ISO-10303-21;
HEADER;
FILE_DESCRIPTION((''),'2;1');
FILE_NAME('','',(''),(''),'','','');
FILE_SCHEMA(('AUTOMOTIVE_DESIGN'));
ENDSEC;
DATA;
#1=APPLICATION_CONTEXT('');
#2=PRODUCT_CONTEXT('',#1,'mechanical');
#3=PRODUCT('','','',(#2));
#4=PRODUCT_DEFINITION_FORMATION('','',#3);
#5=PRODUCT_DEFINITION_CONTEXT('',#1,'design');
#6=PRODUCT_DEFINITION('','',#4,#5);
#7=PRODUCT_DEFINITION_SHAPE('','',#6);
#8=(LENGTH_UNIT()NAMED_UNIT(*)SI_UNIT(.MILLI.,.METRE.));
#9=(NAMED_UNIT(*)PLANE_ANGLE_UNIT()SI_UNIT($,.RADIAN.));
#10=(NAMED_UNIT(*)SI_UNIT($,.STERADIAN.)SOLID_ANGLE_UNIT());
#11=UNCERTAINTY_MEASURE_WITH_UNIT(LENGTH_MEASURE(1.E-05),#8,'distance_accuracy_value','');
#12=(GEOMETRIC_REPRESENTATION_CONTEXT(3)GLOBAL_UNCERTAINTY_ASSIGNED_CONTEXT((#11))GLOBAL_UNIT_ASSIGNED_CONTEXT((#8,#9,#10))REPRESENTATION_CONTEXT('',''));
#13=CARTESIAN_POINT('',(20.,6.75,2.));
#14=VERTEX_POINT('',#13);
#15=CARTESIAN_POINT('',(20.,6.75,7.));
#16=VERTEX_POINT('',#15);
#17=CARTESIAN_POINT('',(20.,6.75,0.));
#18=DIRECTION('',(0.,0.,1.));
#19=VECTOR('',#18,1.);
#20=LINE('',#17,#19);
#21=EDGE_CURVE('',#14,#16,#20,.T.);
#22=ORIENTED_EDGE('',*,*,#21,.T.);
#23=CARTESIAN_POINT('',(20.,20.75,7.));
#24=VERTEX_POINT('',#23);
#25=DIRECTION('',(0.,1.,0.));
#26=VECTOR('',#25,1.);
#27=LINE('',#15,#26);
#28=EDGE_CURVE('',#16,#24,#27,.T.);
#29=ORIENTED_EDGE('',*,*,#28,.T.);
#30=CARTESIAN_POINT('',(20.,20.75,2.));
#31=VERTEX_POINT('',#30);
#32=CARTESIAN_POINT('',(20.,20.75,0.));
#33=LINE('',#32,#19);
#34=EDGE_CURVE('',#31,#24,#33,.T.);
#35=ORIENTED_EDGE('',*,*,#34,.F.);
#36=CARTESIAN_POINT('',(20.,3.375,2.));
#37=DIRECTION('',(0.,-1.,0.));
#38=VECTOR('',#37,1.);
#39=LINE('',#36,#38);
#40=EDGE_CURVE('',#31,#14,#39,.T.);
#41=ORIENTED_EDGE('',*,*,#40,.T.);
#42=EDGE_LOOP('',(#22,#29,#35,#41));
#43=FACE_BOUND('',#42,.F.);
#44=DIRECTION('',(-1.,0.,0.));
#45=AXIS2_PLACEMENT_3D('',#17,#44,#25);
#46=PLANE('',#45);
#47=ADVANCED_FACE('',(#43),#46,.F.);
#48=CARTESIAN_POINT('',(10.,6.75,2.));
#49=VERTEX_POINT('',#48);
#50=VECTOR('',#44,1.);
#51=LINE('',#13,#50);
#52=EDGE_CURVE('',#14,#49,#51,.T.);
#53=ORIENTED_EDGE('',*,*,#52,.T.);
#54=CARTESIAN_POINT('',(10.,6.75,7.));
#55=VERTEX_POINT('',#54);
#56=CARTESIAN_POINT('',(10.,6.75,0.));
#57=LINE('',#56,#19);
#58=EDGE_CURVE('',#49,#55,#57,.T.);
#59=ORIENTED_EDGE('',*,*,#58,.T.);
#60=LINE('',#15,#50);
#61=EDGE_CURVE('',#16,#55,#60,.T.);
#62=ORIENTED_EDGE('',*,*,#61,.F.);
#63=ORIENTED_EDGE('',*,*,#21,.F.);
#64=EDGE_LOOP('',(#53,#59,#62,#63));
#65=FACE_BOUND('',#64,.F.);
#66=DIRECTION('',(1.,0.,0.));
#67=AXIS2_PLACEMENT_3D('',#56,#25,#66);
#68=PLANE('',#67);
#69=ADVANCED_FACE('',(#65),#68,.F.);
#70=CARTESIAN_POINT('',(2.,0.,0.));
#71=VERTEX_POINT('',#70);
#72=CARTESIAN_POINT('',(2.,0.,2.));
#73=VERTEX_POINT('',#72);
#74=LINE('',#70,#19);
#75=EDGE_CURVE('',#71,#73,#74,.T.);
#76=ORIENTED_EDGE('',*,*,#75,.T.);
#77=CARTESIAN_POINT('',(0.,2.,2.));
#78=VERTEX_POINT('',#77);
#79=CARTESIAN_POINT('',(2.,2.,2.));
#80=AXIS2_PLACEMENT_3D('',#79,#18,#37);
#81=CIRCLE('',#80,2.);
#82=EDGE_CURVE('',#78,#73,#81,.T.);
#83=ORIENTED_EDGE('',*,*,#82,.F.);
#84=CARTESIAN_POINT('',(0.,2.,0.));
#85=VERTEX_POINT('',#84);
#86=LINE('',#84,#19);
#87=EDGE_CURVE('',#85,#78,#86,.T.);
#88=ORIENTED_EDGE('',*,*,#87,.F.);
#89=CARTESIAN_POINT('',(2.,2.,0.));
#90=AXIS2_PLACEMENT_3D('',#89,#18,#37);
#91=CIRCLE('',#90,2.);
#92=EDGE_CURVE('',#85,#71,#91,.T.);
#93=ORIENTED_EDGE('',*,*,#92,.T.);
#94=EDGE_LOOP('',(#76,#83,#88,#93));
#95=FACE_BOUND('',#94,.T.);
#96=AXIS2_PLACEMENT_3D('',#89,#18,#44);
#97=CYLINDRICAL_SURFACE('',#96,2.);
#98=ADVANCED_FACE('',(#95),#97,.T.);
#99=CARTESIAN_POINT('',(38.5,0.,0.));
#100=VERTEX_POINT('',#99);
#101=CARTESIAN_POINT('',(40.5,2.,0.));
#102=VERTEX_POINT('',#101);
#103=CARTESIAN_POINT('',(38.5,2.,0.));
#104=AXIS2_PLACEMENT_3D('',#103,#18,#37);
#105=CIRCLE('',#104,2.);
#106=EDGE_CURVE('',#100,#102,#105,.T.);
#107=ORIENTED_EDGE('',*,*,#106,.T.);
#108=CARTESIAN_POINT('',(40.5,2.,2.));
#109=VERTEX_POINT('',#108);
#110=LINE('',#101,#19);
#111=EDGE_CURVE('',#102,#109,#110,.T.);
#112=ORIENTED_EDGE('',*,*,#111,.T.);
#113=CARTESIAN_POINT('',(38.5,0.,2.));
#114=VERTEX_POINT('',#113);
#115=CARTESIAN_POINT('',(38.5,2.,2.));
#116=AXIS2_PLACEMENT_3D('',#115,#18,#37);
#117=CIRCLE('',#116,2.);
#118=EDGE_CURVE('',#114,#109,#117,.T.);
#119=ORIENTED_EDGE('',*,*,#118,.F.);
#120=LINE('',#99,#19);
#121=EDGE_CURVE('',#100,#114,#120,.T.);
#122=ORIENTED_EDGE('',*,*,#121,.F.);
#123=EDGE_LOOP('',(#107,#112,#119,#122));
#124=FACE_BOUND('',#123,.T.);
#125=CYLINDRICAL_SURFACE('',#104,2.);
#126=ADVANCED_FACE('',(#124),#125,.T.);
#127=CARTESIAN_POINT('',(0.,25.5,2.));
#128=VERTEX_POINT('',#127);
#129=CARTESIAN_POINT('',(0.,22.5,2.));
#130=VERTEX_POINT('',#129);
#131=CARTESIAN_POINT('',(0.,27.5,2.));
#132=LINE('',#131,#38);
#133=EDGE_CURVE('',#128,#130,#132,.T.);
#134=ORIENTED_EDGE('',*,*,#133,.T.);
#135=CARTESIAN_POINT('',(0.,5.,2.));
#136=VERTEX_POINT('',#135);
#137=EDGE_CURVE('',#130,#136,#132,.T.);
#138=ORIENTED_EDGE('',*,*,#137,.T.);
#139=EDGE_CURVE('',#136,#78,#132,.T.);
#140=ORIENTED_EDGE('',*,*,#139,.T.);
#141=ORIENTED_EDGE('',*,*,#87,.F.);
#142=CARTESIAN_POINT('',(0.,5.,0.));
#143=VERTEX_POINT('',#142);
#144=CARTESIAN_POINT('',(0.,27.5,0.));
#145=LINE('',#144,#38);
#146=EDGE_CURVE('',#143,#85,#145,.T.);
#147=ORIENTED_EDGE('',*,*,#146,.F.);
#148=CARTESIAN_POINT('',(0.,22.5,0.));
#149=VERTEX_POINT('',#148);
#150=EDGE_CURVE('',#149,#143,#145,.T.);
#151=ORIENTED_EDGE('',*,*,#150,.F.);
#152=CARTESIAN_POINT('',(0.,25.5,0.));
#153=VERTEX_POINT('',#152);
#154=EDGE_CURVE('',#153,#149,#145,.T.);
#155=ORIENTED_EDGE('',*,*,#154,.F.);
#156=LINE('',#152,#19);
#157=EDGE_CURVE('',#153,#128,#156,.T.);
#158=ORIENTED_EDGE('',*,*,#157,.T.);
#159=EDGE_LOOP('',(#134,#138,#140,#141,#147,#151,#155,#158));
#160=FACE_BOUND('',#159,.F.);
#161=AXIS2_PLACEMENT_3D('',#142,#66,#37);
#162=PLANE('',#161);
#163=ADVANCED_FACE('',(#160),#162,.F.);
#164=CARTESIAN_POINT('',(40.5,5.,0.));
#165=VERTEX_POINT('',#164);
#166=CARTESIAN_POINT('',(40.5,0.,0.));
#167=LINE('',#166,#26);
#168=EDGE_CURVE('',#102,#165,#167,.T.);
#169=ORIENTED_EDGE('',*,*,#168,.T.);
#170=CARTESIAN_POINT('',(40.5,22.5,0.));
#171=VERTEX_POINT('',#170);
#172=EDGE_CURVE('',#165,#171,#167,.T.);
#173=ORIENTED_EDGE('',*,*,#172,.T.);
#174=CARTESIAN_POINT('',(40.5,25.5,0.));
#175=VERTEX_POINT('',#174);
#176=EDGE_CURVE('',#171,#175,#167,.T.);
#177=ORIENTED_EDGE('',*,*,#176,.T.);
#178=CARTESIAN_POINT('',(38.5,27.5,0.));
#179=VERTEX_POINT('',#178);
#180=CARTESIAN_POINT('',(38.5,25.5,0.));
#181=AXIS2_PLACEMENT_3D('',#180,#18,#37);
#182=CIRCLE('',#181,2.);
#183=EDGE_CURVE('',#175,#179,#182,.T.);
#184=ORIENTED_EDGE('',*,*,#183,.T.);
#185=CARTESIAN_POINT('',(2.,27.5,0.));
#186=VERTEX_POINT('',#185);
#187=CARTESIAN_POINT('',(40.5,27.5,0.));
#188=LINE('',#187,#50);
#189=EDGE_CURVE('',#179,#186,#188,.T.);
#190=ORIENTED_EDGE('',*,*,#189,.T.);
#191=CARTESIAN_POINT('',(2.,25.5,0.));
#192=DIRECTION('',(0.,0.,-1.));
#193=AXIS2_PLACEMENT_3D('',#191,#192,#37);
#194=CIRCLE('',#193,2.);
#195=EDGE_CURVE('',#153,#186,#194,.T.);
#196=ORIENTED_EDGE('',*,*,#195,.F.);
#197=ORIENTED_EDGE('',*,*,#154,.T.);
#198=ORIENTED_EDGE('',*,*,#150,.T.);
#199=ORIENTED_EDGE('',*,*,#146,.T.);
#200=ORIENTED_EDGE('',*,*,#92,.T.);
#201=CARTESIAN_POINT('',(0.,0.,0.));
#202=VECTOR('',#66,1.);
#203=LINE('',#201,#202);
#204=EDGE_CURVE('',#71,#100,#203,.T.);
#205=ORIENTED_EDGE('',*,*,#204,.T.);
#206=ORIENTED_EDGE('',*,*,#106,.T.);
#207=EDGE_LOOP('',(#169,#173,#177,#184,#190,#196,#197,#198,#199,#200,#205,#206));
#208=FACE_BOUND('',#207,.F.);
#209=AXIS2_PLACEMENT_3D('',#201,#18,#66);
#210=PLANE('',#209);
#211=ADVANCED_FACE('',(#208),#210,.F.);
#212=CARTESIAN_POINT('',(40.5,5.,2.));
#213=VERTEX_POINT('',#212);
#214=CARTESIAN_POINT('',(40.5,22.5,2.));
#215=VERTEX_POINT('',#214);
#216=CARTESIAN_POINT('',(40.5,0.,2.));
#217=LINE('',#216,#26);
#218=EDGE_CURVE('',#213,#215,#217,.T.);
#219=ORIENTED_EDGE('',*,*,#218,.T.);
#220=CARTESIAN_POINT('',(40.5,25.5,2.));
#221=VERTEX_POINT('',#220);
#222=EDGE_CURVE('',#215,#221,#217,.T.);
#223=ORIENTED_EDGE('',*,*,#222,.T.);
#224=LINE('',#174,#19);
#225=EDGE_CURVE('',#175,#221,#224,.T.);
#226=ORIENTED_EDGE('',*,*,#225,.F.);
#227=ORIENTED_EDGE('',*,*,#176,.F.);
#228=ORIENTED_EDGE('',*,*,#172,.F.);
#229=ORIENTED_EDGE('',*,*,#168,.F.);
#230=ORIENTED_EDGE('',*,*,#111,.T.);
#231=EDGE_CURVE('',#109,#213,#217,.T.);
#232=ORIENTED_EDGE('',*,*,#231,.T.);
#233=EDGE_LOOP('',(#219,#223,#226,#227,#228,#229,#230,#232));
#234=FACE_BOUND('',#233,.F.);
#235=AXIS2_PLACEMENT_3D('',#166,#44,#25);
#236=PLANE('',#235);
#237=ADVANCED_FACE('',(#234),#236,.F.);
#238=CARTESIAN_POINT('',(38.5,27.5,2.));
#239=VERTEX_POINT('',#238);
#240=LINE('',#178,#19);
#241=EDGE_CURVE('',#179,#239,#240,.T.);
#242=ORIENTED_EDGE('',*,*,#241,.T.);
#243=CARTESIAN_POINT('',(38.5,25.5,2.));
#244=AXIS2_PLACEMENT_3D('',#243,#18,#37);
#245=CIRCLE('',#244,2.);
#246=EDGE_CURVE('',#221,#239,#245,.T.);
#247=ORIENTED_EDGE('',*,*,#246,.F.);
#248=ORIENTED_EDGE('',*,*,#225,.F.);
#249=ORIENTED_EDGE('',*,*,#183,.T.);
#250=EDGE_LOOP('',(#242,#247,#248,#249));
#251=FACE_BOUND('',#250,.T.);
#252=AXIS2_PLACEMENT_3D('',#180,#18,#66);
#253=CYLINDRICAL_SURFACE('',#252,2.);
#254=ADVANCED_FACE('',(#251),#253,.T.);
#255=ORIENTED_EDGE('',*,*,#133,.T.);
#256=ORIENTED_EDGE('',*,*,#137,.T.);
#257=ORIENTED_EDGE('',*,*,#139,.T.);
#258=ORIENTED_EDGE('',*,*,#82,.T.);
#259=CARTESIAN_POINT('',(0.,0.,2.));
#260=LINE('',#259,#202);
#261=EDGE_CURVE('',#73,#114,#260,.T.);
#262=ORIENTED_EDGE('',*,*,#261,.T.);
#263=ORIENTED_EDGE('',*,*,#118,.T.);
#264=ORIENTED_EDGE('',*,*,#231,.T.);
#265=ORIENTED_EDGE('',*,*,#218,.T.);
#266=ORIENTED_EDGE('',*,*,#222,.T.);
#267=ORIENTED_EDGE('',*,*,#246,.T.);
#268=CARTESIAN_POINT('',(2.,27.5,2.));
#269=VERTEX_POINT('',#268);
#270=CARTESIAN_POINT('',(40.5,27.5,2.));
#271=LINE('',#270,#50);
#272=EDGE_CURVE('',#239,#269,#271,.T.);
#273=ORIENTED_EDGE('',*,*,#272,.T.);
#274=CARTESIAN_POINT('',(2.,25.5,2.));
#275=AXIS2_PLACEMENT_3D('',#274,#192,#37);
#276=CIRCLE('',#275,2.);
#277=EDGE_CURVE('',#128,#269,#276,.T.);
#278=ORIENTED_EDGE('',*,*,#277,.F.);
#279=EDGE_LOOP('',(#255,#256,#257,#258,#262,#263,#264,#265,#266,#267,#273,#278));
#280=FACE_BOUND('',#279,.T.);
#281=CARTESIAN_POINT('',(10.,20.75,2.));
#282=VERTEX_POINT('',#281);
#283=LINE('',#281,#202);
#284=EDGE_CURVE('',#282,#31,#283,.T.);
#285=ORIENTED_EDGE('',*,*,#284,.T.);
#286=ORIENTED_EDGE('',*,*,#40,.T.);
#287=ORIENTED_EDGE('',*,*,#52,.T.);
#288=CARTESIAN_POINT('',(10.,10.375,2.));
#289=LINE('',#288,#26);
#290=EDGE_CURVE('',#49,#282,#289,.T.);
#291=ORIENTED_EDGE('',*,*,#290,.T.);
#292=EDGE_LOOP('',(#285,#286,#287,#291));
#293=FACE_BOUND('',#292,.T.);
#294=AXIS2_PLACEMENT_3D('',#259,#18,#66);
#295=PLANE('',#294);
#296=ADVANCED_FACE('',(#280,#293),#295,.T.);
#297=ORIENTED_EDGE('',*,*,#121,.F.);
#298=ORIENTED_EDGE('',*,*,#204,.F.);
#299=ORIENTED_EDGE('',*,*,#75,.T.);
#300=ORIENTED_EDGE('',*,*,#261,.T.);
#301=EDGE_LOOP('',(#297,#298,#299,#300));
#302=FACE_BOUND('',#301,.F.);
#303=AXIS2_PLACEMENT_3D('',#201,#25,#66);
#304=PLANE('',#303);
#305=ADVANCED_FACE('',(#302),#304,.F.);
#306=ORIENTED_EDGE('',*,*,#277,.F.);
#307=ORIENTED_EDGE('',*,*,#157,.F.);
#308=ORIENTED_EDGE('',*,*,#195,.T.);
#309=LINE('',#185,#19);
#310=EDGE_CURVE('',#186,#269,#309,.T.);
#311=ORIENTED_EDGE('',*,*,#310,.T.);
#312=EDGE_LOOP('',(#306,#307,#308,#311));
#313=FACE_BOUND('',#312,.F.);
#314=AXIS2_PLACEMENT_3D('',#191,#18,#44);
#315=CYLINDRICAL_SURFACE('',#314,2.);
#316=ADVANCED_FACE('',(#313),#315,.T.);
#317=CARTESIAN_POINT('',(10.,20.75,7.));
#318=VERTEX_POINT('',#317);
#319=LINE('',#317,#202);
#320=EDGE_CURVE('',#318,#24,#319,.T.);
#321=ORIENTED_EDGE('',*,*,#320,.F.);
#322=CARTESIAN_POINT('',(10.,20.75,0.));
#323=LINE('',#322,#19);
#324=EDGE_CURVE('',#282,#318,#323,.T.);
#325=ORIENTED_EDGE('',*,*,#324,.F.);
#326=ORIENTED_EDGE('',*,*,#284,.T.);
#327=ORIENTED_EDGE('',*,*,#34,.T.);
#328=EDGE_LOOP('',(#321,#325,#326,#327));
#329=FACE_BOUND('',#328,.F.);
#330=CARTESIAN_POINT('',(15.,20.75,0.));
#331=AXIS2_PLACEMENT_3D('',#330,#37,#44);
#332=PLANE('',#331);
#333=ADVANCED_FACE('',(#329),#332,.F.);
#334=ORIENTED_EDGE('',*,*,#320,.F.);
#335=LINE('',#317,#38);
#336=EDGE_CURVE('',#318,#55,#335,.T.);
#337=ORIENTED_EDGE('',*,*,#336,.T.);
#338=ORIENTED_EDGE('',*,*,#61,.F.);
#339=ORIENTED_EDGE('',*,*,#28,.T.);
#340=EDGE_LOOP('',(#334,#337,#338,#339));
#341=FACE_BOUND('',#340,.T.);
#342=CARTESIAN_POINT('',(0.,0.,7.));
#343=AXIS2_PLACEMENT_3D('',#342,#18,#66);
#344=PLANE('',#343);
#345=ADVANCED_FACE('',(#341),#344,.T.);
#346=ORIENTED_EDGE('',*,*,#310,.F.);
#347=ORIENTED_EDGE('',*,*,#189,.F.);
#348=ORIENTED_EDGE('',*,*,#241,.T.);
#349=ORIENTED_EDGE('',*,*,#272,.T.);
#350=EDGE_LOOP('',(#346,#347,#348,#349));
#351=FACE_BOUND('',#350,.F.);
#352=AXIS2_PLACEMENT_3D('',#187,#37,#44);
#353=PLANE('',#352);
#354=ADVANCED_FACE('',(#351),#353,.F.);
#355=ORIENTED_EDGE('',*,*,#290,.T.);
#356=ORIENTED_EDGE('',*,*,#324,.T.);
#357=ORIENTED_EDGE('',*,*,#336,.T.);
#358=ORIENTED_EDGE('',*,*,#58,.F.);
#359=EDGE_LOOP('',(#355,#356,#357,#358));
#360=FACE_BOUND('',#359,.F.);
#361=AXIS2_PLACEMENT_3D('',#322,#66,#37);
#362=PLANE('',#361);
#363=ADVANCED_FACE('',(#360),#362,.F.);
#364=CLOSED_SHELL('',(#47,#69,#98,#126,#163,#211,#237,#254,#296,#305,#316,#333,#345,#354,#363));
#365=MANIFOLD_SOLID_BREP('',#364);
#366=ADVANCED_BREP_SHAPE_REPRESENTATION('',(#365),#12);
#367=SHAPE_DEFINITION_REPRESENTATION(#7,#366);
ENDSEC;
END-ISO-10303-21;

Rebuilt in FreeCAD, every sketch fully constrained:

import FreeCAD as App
import Part
import Sketcher

V = App.Vector


def edges_at(feature, points):
    """Names of the edges that pass closest to the given points."""
    edges = feature.Shape.Edges
    near = lambda p: min(range(len(edges)), key=lambda i: edges[i].distToShape(Part.Vertex(*p))[0])
    return sorted({f"Edge{near(p) + 1}" for p in points})


def add_polygon(sketch, points):
    """Adds a closed chain of lines whose ends are joined by coincident constraints."""
    first, n = sketch.GeometryCount, len(points)
    for a, b in zip(points, points[1:] + points[:1]):
        sketch.addGeometry(Part.LineSegment(App.Vector(*a, 0), App.Vector(*b, 0)), False)
    for i in range(n):
        sketch.addConstraint(Sketcher.Constraint("Coincident", first + i, 2, first + (i + 1) % n, 1))

doc = App.newDocument("Part")
body = doc.addObject("PartDesign::Body", "Body")

# Sketch on XY plane
sketch1 = body.newObject("Sketcher::SketchObject", "Sketch")
sketch1.AttachmentSupport = (doc.getObject("XY_Plane"), [""])
sketch1.MapMode = "FlatFace"
add_polygon(sketch1, [(0, 5), (0, 0), (40.5, 0), (40.5, 5), (40.5, 22.5), (40.5, 27.5), (0, 27.5), (0, 22.5)])  # lines 0-7
sketch1.addGeometry(Part.Circle(V(5, 5, 0), V(0, 0, 1), 1.5), False)  # 8
sketch1.addGeometry(Part.Circle(V(35.5, 5, 0), V(0, 0, 1), 1.5), False)  # 9
sketch1.addGeometry(Part.Circle(V(5, 22.5, 0), V(0, 0, 1), 1.5), False)  # 10
sketch1.addGeometry(Part.Circle(V(35.5, 22.5, 0), V(0, 0, 1), 1.5), False)  # 11
sketch1.addConstraint([
    Sketcher.Constraint("Vertical", 0),
    Sketcher.Constraint("Horizontal", 1),
    Sketcher.Constraint("Vertical", 2),
    Sketcher.Constraint("Vertical", 3),
    Sketcher.Constraint("Vertical", 4),
    Sketcher.Constraint("Horizontal", 5),
    Sketcher.Constraint("Vertical", 6),
    Sketcher.Constraint("Vertical", 7),
    Sketcher.Constraint("Coincident", 0, 2, -1, 1),
    Sketcher.Constraint("Equal", 8, 9),
    Sketcher.Constraint("Equal", 9, 10),
    Sketcher.Constraint("Equal", 10, 11),
    Sketcher.Constraint("Horizontal", 8, 3, 9, 3),
    Sketcher.Constraint("Horizontal", 10, 3, 11, 3),
    Sketcher.Constraint("Horizontal", 9, 3, 2, 2),
    Sketcher.Constraint("Horizontal", 11, 3, 3, 2),
    Sketcher.Constraint("Horizontal", 3, 2, 6, 2),
    Sketcher.Constraint("Horizontal", 2, 2, 7, 2),
    Sketcher.Constraint("Vertical", 8, 3, 10, 3),
    Sketcher.Constraint("Vertical", 9, 3, 11, 3),
    Sketcher.Constraint("Equal", 2, 4),
    Sketcher.Constraint("Diameter", 8, 3.0),
    Sketcher.Constraint("DistanceY", 0, 2, 0, 1, 5.0),
    Sketcher.Constraint("DistanceX", 1, 1, 1, 2, 40.5),
    Sketcher.Constraint("DistanceX", -1, 1, 8, 3, 5.0),
    Sketcher.Constraint("DistanceX", 9, 3, 1, 2, 5.0),
    Sketcher.Constraint("DistanceY", -1, 1, 4, 2, 27.5),
])
pad1 = body.newObject("PartDesign::Pad", "Pad")
pad1.Profile = sketch1
pad1.Length = 2
doc.recompute()

fillet = body.newObject("PartDesign::Fillet", "Fillet")
fillet.Base = (pad1, edges_at(pad1, [
    (0, 27.5, 1),
    (0, 0, 1),
    (40.5, 27.5, 1),
    (40.5, 0, 1),
]))
fillet.Radius = 2

# Sketch on XY plane
sketch2 = body.newObject("Sketcher::SketchObject", "Sketch001")
sketch2.AttachmentSupport = (doc.getObject("XY_Plane"), [""])
sketch2.MapMode = "FlatFace"
add_polygon(sketch2, [(20, 21), (10, 21), (10, 7), (20, 7)])  # lines 0-3
sketch2.addConstraint([
    Sketcher.Constraint("Horizontal", 0),
    Sketcher.Constraint("Vertical", 1),
    Sketcher.Constraint("Horizontal", 2),
    Sketcher.Constraint("Vertical", 3),
    Sketcher.Constraint("DistanceX", 0, 2, 0, 1, 10.0),
    Sketcher.Constraint("DistanceY", 1, 2, 1, 1, 14.0),
    Sketcher.Constraint("DistanceX", -1, 1, 0, 2, 10.0),
    Sketcher.Constraint("DistanceY", -1, 1, 0, 2, 20.75),
])
pad2 = body.newObject("PartDesign::Pad", "Pad001")
pad2.Profile = sketch2
pad2.Length = 7

# Sketch on XY plane
sketch3 = body.newObject("Sketcher::SketchObject", "Sketch002")
sketch3.AttachmentSupport = (doc.getObject("XY_Plane"), [""])
sketch3.MapMode = "FlatFace"
sketch3.addGeometry([
    Part.Circle(V(35.5, 5, 0), V(0, 0, 1), 1.5),
    Part.Circle(V(35.5, 22.5, 0), V(0, 0, 1), 1.5),
    Part.Circle(V(5, 22.5, 0), V(0, 0, 1), 1.5),
    Part.Circle(V(5, 5, 0), V(0, 0, 1), 1.5),
], False)
sketch3.addConstraint([
    Sketcher.Constraint("Equal", 0, 1),
    Sketcher.Constraint("Equal", 1, 2),
    Sketcher.Constraint("Equal", 2, 3),
    Sketcher.Constraint("Horizontal", 1, 3, 2, 3),
    Sketcher.Constraint("Horizontal", 0, 3, 3, 3),
    Sketcher.Constraint("Vertical", 0, 3, 1, 3),
    Sketcher.Constraint("Vertical", 2, 3, 3, 3),
    Sketcher.Constraint("Diameter", 0, 3.0),
    Sketcher.Constraint("DistanceY", -1, 1, 0, 3, 5.0),
    Sketcher.Constraint("DistanceX", -1, 1, 2, 3, 5.0),
    Sketcher.Constraint("DistanceX", -1, 1, 0, 3, 35.5),
    Sketcher.Constraint("DistanceY", -1, 1, 1, 3, 22.5),
])
pad3 = body.newObject("PartDesign::Pad", "Pad002")
pad3.Profile = sketch3
pad3.Length = 2

doc.recompute()
